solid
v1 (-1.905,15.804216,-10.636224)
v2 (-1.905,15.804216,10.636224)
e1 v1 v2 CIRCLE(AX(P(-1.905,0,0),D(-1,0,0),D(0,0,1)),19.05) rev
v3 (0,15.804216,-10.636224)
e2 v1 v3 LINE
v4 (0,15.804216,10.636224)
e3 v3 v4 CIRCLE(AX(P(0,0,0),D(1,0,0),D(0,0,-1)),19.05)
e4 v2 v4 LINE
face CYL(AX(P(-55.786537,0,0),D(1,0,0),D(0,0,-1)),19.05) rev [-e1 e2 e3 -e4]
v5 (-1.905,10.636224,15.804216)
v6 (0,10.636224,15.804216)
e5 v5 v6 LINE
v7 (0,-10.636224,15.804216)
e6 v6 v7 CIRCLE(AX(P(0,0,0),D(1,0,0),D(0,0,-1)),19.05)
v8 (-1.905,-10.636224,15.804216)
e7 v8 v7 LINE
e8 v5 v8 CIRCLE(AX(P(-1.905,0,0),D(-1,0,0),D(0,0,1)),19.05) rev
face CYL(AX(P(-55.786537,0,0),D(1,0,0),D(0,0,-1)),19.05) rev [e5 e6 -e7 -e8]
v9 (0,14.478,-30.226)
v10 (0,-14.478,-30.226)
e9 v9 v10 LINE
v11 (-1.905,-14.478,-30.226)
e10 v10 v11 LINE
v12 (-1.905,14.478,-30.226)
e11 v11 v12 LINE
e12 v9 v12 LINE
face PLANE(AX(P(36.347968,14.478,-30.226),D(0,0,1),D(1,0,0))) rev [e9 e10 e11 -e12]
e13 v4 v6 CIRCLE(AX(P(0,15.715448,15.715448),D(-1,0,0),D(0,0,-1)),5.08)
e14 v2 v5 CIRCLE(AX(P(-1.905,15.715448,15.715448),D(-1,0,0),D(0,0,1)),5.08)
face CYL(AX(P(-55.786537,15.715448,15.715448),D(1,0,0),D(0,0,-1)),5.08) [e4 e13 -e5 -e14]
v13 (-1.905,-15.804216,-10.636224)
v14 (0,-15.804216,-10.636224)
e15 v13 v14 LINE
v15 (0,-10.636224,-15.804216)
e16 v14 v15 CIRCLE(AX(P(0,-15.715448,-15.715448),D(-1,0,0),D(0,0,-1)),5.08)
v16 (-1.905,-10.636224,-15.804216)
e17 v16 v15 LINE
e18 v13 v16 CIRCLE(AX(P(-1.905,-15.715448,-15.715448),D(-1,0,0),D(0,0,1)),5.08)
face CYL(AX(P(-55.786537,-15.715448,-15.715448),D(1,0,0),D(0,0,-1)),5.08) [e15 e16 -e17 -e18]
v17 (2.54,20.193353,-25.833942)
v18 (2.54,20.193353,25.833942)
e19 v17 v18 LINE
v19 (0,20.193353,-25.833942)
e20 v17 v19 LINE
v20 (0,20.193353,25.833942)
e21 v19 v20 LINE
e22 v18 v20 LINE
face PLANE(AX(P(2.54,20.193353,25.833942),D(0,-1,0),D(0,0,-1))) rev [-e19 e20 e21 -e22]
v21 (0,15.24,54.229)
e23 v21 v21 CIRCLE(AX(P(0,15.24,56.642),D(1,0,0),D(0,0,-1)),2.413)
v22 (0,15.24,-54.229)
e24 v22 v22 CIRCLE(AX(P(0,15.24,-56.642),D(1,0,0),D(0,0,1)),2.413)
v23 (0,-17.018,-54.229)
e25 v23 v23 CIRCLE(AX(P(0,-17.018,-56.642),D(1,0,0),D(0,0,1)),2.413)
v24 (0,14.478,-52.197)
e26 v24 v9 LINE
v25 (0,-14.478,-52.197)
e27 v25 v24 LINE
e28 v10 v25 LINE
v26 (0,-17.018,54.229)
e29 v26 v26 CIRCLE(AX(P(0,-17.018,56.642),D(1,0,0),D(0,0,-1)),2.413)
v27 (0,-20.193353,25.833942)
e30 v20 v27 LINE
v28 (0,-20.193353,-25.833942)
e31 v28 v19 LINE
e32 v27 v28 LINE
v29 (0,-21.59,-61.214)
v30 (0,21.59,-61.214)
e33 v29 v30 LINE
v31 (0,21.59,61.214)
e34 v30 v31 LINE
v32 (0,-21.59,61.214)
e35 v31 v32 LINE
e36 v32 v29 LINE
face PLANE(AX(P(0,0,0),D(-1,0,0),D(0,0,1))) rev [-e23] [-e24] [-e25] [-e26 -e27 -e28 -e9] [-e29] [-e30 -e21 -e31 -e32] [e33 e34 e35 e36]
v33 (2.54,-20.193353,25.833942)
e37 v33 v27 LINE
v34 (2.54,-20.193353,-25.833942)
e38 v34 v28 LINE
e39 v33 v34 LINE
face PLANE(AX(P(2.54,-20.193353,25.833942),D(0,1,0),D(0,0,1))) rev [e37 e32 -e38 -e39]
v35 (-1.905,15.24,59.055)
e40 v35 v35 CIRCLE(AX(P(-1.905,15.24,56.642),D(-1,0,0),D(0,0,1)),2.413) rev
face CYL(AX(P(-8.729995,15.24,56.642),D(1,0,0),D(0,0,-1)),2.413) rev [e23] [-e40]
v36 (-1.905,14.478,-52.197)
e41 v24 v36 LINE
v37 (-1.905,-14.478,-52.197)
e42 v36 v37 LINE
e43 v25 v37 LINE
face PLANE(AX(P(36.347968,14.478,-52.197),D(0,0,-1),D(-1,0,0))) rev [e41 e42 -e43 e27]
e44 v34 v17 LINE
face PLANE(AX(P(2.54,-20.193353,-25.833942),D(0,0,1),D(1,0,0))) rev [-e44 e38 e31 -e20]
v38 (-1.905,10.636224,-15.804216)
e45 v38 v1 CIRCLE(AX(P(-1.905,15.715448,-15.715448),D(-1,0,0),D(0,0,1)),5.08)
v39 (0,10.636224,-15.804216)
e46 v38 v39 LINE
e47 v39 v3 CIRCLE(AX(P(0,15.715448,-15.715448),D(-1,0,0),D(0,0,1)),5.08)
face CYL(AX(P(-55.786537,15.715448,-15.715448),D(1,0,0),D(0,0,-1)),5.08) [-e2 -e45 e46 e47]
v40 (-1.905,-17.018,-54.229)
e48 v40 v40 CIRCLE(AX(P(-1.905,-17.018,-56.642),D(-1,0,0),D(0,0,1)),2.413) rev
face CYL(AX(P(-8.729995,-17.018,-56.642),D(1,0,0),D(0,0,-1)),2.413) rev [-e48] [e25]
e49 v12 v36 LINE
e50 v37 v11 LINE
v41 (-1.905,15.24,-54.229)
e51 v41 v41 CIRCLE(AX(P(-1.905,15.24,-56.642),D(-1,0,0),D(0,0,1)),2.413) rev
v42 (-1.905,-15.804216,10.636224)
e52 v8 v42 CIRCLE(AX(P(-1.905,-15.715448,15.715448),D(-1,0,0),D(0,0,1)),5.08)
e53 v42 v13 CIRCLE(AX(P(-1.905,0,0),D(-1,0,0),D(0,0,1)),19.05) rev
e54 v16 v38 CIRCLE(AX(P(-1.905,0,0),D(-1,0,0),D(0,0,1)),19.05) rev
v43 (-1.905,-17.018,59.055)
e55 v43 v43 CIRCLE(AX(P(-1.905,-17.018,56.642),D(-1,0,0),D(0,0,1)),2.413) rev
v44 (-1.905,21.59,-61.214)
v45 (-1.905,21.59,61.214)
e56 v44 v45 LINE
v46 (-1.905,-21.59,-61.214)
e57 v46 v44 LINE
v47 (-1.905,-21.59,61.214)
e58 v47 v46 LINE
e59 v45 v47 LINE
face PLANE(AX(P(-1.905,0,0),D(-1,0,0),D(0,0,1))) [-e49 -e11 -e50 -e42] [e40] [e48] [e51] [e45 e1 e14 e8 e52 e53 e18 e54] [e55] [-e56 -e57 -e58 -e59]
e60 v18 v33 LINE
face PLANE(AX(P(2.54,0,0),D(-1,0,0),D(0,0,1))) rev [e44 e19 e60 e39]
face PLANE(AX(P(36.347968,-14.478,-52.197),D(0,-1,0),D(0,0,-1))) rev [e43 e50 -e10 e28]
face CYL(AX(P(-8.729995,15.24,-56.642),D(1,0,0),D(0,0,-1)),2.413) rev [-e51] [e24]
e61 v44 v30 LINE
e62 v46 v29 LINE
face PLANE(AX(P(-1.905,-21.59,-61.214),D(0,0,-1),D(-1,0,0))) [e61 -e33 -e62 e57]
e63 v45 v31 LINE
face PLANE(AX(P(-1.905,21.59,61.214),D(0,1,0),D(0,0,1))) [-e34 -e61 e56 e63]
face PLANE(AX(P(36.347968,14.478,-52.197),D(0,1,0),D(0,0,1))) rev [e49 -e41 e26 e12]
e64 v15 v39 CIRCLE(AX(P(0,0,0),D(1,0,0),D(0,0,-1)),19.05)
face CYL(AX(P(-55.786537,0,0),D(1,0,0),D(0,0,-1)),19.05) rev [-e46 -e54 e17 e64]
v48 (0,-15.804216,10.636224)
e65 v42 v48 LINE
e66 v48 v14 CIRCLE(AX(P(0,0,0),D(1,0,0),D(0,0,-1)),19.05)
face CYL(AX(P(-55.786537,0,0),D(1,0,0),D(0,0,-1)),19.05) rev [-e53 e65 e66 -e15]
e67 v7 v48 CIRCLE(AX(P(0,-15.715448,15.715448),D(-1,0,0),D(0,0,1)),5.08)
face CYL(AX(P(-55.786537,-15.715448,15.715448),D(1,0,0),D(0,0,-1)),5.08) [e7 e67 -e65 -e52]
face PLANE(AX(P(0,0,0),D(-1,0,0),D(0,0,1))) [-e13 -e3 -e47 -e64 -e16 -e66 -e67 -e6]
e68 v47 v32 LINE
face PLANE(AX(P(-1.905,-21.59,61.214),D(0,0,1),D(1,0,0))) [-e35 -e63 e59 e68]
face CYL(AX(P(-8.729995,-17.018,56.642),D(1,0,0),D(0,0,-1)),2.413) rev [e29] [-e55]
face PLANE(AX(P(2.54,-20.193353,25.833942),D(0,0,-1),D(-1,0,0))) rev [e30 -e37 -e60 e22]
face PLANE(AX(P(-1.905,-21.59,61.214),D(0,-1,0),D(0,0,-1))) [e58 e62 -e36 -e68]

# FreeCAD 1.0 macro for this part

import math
import FreeCAD as App
import Part
import Sketcher
from FreeCAD import Vector
Q = App.Units.Quantity

doc = App.newDocument("Part")
params = doc.addObject("Spreadsheet::Sheet", "Params")
for row, (alias, value) in enumerate([
    ("sketch1_width", "1.7 in"),
    ("sketch1_height", "4.82 in"),
    ("pad1_length", "0.075 in"),
    ("sketch2_diameter", "0.19 in"),
    ("pocket1_length", "0.075 in"),
    ("sketch3_radius", "0.2 in"),
    ("sketch3_radius2", "0.75 in"),
    ("pocket2_length", "0.075 in"),
    ("sketch4_width", "1.14 in"),
    ("sketch4_height", "0.865 in"),
    ("pocket3_length", "0.075 in"),
    ("pad2_length", "0.1 in"),
], start=1):
    params.set(f"A{row}", alias)
    params.set(f"B{row}", "=" + value)
    params.setAlias(f"B{row}", alias)

body = doc.addObject("PartDesign::Body", "Body")

# Sketch on YZ plane
sketch1 = body.newObject("Sketcher::SketchObject", "Sketch")
sketch1.AttachmentSupport = (doc.getObject("YZ_Plane"), [""])
sketch1.MapMode = "FlatFace"
sketch1.addGeometry(Part.LineSegment(Vector(22, 61, 0), Vector(-22, 61, 0)), False)
sketch1.addGeometry(Part.LineSegment(Vector(-22, 61, 0), Vector(-22, -61, 0)), False)
sketch1.addGeometry(Part.LineSegment(Vector(-22, -61, 0), Vector(22, -61, 0)), False)
sketch1.addGeometry(Part.LineSegment(Vector(22, -61, 0), Vector(22, 61, 0)), False)
sketch1.addConstraint(Sketcher.Constraint("Coincident", 0, 2, 1, 1))
sketch1.addConstraint(Sketcher.Constraint("Coincident", 1, 2, 2, 1))
sketch1.addConstraint(Sketcher.Constraint("Coincident", 2, 2, 3, 1))
sketch1.addConstraint(Sketcher.Constraint("Coincident", 3, 2, 0, 1))
sketch1.addConstraint(Sketcher.Constraint("Horizontal", 0))
sketch1.addConstraint(Sketcher.Constraint("Vertical", 1))
sketch1.addConstraint(Sketcher.Constraint("Horizontal", 2))
sketch1.addConstraint(Sketcher.Constraint("Vertical", 3))
sketch1.addConstraint(Sketcher.Constraint("Symmetric", 0, 2, 2, 2, -1, 1))
sketch1.addConstraint(Sketcher.Constraint("DistanceX", 0, 2, 0, 1, Q("1.7 in")))
sketch1.addConstraint(Sketcher.Constraint("DistanceY", 1, 2, 1, 1, Q("4.82 in")))
sketch1.setExpression("Constraints[9]", "Params.sketch1_width")
sketch1.setExpression("Constraints[10]", "Params.sketch1_height")
pad1 = body.newObject("PartDesign::Pad", "Pad")
pad1.Profile = sketch1
pad1.setExpression("Length", "Params.pad1_length")
pad1.Reversed = True

# Sketch on YZ plane
sketch2 = body.newObject("Sketcher::SketchObject", "Sketch001")
sketch2.AttachmentSupport = (doc.getObject("YZ_Plane"), [""])
sketch2.MapMode = "FlatFace"
sketch2.addGeometry(Part.Circle(Vector(15.2, 56.6, 0), Vector(0, 0, 1), 2.4), False)
sketch2.addGeometry(Part.Circle(Vector(-17, 56.6, 0), Vector(0, 0, 1), 2.4), False)
sketch2.addGeometry(Part.Circle(Vector(15.2, -56.6, 0), Vector(0, 0, 1), 2.4), False)
sketch2.addGeometry(Part.Circle(Vector(-17, -56.6, 0), Vector(0, 0, 1), 2.4), False)
sketch2.addConstraint(Sketcher.Constraint("Equal", 0, 1))
sketch2.addConstraint(Sketcher.Constraint("Equal", 1, 2))
sketch2.addConstraint(Sketcher.Constraint("Equal", 2, 3))
sketch2.addConstraint(Sketcher.Constraint("Symmetric", 0, 3, 2, 3, -1))
sketch2.addConstraint(Sketcher.Constraint("Symmetric", 1, 3, 3, 3, -1))
sketch2.addConstraint(Sketcher.Constraint("Horizontal", 0, 3, 1, 3))
sketch2.addConstraint(Sketcher.Constraint("Diameter", 0, Q("0.19 in")))
sketch2.addConstraint(Sketcher.Constraint("DistanceX", -1, 1, 0, 3, Q("0.6 in")))
sketch2.addConstraint(Sketcher.Constraint("DistanceY", -1, 1, 0, 3, Q("2.23 in")))
sketch2.addConstraint(Sketcher.Constraint("DistanceX", 1, 3, -1, 1, Q("0.67 in")))
sketch2.setExpression("Constraints[6]", "Params.sketch2_diameter")
pocket1 = body.newObject("PartDesign::Pocket", "Pocket")
pocket1.Profile = sketch2
pocket1.setExpression("Length", "Params.pocket1_length")

# Sketch on YZ plane
sketch3 = body.newObject("Sketcher::SketchObject", "Sketch002")
sketch3.AttachmentSupport = (doc.getObject("YZ_Plane"), [""])
sketch3.MapMode = "FlatFace"
sketch3.addGeometry(Part.ArcOfCircle(Part.Circle(Vector(0, 0, 0), Vector(0, 0, 1), 19), math.radians(146), math.radians(214)), False)
sketch3.addGeometry(Part.ArcOfCircle(Part.Circle(Vector(-16, -16, 0), Vector(0, 0, 1), 5), math.radians(-1), math.radians(91)), False)
sketch3.addGeometry(Part.ArcOfCircle(Part.Circle(Vector(0, 0, 0), Vector(0, 0, 1), 19), math.radians(-124), math.radians(-56)), False)
sketch3.addGeometry(Part.ArcOfCircle(Part.Circle(Vector(16, -16, 0), Vector(0, 0, 1), 5), math.radians(89), math.radians(181)), False)
sketch3.addGeometry(Part.ArcOfCircle(Part.Circle(Vector(0, 0, 0), Vector(0, 0, 1), 19), math.radians(-34), math.radians(34)), False)
sketch3.addGeometry(Part.ArcOfCircle(Part.Circle(Vector(16, 16, 0), Vector(0, 0, 1), 5), math.radians(179), math.radians(271)), False)
sketch3.addGeometry(Part.ArcOfCircle(Part.Circle(Vector(0, 0, 0), Vector(0, 0, 1), 19), math.radians(56), math.radians(124)), False)
sketch3.addGeometry(Part.ArcOfCircle(Part.Circle(Vector(-16, 16, 0), Vector(0, 0, 1), 5), math.radians(-91), math.radians(1)), False)
sketch3.addConstraint(Sketcher.Constraint("Coincident", 0, 2, 1, 2))
sketch3.addConstraint(Sketcher.Constraint("Coincident", 1, 1, 2, 1))
sketch3.addConstraint(Sketcher.Constraint("Coincident", 2, 2, 3, 2))
sketch3.addConstraint(Sketcher.Constraint("Coincident", 3, 1, 4, 1))
sketch3.addConstraint(Sketcher.Constraint("Coincident", 4, 2, 5, 2))
sketch3.addConstraint(Sketcher.Constraint("Coincident", 5, 1, 6, 1))
sketch3.addConstraint(Sketcher.Constraint("Coincident", 6, 2, 7, 2))
sketch3.addConstraint(Sketcher.Constraint("Coincident", 7, 1, 0, 1))
sketch3.addConstraint(Sketcher.Constraint("Coincident", 0, 3, -1, 1))
sketch3.addConstraint(Sketcher.Constraint("Coincident", 2, 3, -1, 1))
sketch3.addConstraint(Sketcher.Constraint("Coincident", 4, 3, -1, 1))
sketch3.addConstraint(Sketcher.Constraint("Coincident", 6, 3, -1, 1))
sketch3.addConstraint(Sketcher.Constraint("Equal", 0, 2))
sketch3.addConstraint(Sketcher.Constraint("Equal", 1, 3))
sketch3.addConstraint(Sketcher.Constraint("Equal", 2, 4))
sketch3.addConstraint(Sketcher.Constraint("Equal", 3, 5))
sketch3.addConstraint(Sketcher.Constraint("Equal", 4, 6))
sketch3.addConstraint(Sketcher.Constraint("Equal", 5, 7))
sketch3.addConstraint(Sketcher.Constraint("Symmetric", 1, 3, 5, 3, -1, 1))
sketch3.addConstraint(Sketcher.Constraint("Symmetric", 3, 3, 7, 3, -1, 1))
sketch3.addConstraint(Sketcher.Constraint("Symmetric", 1, 3, 3, 3, -2))
sketch3.addConstraint(Sketcher.Constraint("Radius", 1, Q("0.2 in")))
sketch3.addConstraint(Sketcher.Constraint("Radius", 0, Q("0.75 in")))
sketch3.addConstraint(Sketcher.Constraint("DistanceX", 1, 3, -1, 1, Q("15.715448 mm")))
sketch3.addConstraint(Sketcher.Constraint("DistanceY", 1, 3, -1, 1, Q("15.715448 mm")))
sketch3.setExpression("Constraints[21]", "Params.sketch3_radius")
sketch3.setExpression("Constraints[22]", "Params.sketch3_radius2")
pocket2 = body.newObject("PartDesign::Pocket", "Pocket001")
pocket2.Profile = sketch3
pocket2.setExpression("Length", "Params.pocket2_length")

# Sketch on YZ plane
sketch4 = body.newObject("Sketcher::SketchObject", "Sketch003")
sketch4.AttachmentSupport = (doc.getObject("YZ_Plane"), [""])
sketch4.MapMode = "FlatFace"
sketch4.AttachmentOffset = App.Placement(Vector(0, 0, -0.075 * 25.4), App.Rotation())
sketch4.addGeometry(Part.LineSegment(Vector(14, -52, 0), Vector(-14, -52, 0)), False)
sketch4.addGeometry(Part.LineSegment(Vector(-14, -52, 0), Vector(-14, -30, 0)), False)
sketch4.addGeometry(Part.LineSegment(Vector(-14, -30, 0), Vector(14, -30, 0)), False)
sketch4.addGeometry(Part.LineSegment(Vector(14, -30, 0), Vector(14, -52, 0)), False)
sketch4.addConstraint(Sketcher.Constraint("Coincident", 0, 2, 1, 1))
sketch4.addConstraint(Sketcher.Constraint("Coincident", 1, 2, 2, 1))
sketch4.addConstraint(Sketcher.Constraint("Coincident", 2, 2, 3, 1))
sketch4.addConstraint(Sketcher.Constraint("Coincident", 3, 2, 0, 1))
sketch4.addConstraint(Sketcher.Constraint("Horizontal", 0))
sketch4.addConstraint(Sketcher.Constraint("Vertical", 1))
sketch4.addConstraint(Sketcher.Constraint("Horizontal", 2))
sketch4.addConstraint(Sketcher.Constraint("Vertical", 3))
sketch4.addConstraint(Sketcher.Constraint("DistanceX", 0, 2, 0, 1, Q("1.14 in")))
sketch4.addConstraint(Sketcher.Constraint("DistanceY", 1, 1, 1, 2, Q("0.865 in")))
sketch4.addConstraint(Sketcher.Constraint("DistanceX", 0, 2, -1, 1, Q("0.57 in")))
sketch4.addConstraint(Sketcher.Constraint("DistanceY", 1, 2, -1, 1, Q("1.19 in")))
sketch4.setExpression("Constraints[8]", "Params.sketch4_width")
sketch4.setExpression("Constraints[9]", "Params.sketch4_height")
pocket3 = body.newObject("PartDesign::Pocket", "Pocket002")
pocket3.Profile = sketch4
pocket3.setExpression("Length", "Params.pocket3_length")
pocket3.Reversed = True

# Sketch on YZ plane
sketch5 = body.newObject("Sketcher::SketchObject", "Sketch004")
sketch5.AttachmentSupport = (doc.getObject("YZ_Plane"), [""])
sketch5.MapMode = "FlatFace"
sketch5.addGeometry(Part.LineSegment(Vector(20, 26, 0), Vector(-20, 26, 0)), False)
sketch5.addGeometry(Part.LineSegment(Vector(-20, 26, 0), Vector(-20, -26, 0)), False)
sketch5.addGeometry(Part.LineSegment(Vector(-20, -26, 0), Vector(20, -26, 0)), False)
sketch5.addGeometry(Part.LineSegment(Vector(20, -26, 0), Vector(20, 26, 0)), False)
sketch5.addConstraint(Sketcher.Constraint("Coincident", 0, 2, 1, 1))
sketch5.addConstraint(Sketcher.Constraint("Coincident", 1, 2, 2, 1))
sketch5.addConstraint(Sketcher.Constraint("Coincident", 2, 2, 3, 1))
sketch5.addConstraint(Sketcher.Constraint("Coincident", 3, 2, 0, 1))
sketch5.addConstraint(Sketcher.Constraint("Horizontal", 0))
sketch5.addConstraint(Sketcher.Constraint("Vertical", 1))
sketch5.addConstraint(Sketcher.Constraint("Horizontal", 2))
sketch5.addConstraint(Sketcher.Constraint("Vertical", 3))
sketch5.addConstraint(Sketcher.Constraint("Symmetric", 0, 2, 2, 2, -1, 1))
sketch5.addConstraint(Sketcher.Constraint("DistanceX", 0, 2, 0, 1, Q("40.386705 mm")))
sketch5.addConstraint(Sketcher.Constraint("DistanceY", 1, 2, 1, 1, Q("51.667883 mm")))
pad2 = body.newObject("PartDesign::Pad", "Pad001")
pad2.Profile = sketch5
pad2.setExpression("Length", "Params.pad2_length")

doc.recompute()
